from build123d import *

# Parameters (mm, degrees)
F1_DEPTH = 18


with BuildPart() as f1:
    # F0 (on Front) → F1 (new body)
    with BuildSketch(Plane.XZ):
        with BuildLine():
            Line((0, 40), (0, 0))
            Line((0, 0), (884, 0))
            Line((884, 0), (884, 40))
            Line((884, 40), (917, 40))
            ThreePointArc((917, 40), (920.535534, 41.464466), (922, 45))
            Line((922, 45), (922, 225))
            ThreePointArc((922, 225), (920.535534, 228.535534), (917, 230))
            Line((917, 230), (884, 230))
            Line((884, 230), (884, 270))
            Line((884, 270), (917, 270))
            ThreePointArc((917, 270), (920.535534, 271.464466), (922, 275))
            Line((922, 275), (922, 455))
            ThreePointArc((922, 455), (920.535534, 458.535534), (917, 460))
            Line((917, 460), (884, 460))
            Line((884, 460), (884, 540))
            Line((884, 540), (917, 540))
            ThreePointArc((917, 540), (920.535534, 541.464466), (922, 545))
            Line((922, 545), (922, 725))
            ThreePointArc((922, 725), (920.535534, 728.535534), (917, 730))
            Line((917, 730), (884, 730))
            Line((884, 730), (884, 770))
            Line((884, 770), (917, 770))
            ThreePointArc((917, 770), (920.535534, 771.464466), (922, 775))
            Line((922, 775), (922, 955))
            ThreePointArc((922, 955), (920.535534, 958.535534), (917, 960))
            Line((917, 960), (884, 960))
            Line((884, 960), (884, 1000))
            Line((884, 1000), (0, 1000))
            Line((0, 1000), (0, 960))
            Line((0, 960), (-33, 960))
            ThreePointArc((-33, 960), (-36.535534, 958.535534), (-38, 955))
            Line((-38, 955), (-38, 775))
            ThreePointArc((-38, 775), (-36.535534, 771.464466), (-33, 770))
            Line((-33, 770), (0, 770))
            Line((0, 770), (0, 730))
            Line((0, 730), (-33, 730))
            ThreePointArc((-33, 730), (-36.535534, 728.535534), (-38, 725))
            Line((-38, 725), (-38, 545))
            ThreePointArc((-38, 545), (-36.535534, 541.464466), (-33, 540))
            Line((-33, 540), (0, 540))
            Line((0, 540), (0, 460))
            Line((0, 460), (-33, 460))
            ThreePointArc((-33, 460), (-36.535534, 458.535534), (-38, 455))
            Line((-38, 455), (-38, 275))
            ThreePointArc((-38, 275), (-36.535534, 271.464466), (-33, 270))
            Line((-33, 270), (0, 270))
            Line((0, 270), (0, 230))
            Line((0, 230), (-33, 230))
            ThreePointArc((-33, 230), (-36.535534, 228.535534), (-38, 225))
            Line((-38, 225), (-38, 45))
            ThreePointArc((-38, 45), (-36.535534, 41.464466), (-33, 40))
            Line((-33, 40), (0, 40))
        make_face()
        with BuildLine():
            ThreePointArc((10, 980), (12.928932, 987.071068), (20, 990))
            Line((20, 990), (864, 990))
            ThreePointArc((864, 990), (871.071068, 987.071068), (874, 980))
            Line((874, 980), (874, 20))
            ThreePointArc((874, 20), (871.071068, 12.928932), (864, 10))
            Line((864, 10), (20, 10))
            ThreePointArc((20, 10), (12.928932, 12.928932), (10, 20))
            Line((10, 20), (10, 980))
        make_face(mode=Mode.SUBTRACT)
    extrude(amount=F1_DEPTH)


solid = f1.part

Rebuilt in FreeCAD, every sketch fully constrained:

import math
import FreeCAD as App
import Part
import Sketcher

doc = App.newDocument("Part")
body = doc.addObject("PartDesign::Body", "Body")

# Sketch on XZ plane
sketch1 = body.newObject("Sketcher::SketchObject", "Sketch")
sketch1.AttachmentSupport = (doc.getObject("XZ_Plane"), [""])
sketch1.MapMode = "FlatFace"
sketch1.addGeometry(Part.LineSegment(App.Vector(0, 40, 0), App.Vector(0, 0, 0)), False)
sketch1.addGeometry(Part.LineSegment(App.Vector(0, 0, 0), App.Vector(884, 0, 0)), False)
sketch1.addGeometry(Part.LineSegment(App.Vector(884, 0, 0), App.Vector(884, 40, 0)), False)
sketch1.addGeometry(Part.LineSegment(App.Vector(884, 40, 0), App.Vector(917, 40, 0)), False)
sketch1.addGeometry(Part.ArcOfCircle(Part.Circle(App.Vector(917, 45, 0), App.Vector(0, 0, 1), 5), math.radians(-90), math.radians(0)), False)
sketch1.addGeometry(Part.LineSegment(App.Vector(922, 45, 0), App.Vector(922, 225, 0)), False)
sketch1.addGeometry(Part.ArcOfCircle(Part.Circle(App.Vector(917, 225, 0), App.Vector(0, 0, 1), 5), math.radians(0), math.radians(90)), False)
sketch1.addGeometry(Part.LineSegment(App.Vector(917, 230, 0), App.Vector(884, 230, 0)), False)
sketch1.addGeometry(Part.LineSegment(App.Vector(884, 230, 0), App.Vector(884, 270, 0)), False)
sketch1.addGeometry(Part.LineSegment(App.Vector(884, 270, 0), App.Vector(917, 270, 0)), False)
sketch1.addGeometry(Part.ArcOfCircle(Part.Circle(App.Vector(917, 275, 0), App.Vector(0, 0, 1), 5), math.radians(-90), math.radians(0)), False)
sketch1.addGeometry(Part.LineSegment(App.Vector(922, 275, 0), App.Vector(922, 455, 0)), False)
sketch1.addGeometry(Part.ArcOfCircle(Part.Circle(App.Vector(917, 455, 0), App.Vector(0, 0, 1), 5), math.radians(0), math.radians(90)), False)
sketch1.addGeometry(Part.LineSegment(App.Vector(917, 460, 0), App.Vector(884, 460, 0)), False)
sketch1.addGeometry(Part.LineSegment(App.Vector(884, 460, 0), App.Vector(884, 540, 0)), False)
sketch1.addGeometry(Part.LineSegment(App.Vector(884, 540, 0), App.Vector(917, 540, 0)), False)
sketch1.addGeometry(Part.ArcOfCircle(Part.Circle(App.Vector(917, 545, 0), App.Vector(0, 0, 1), 5), math.radians(-90), math.radians(0)), False)
sketch1.addGeometry(Part.LineSegment(App.Vector(922, 545, 0), App.Vector(922, 725, 0)), False)
sketch1.addGeometry(Part.ArcOfCircle(Part.Circle(App.Vector(917, 725, 0), App.Vector(0, 0, 1), 5), math.radians(0), math.radians(90)), False)
sketch1.addGeometry(Part.LineSegment(App.Vector(917, 730, 0), App.Vector(884, 730, 0)), False)
sketch1.addGeometry(Part.LineSegment(App.Vector(884, 730, 0), App.Vector(884, 770, 0)), False)
sketch1.addGeometry(Part.LineSegment(App.Vector(884, 770, 0), App.Vector(917, 770, 0)), False)
sketch1.addGeometry(Part.ArcOfCircle(Part.Circle(App.Vector(917, 775, 0), App.Vector(0, 0, 1), 5), math.radians(-90), math.radians(0)), False)
sketch1.addGeometry(Part.LineSegment(App.Vector(922, 775, 0), App.Vector(922, 955, 0)), False)
sketch1.addGeometry(Part.ArcOfCircle(Part.Circle(App.Vector(917, 955, 0), App.Vector(0, 0, 1), 5), math.radians(0), math.radians(90)), False)
sketch1.addGeometry(Part.LineSegment(App.Vector(917, 960, 0), App.Vector(884, 960, 0)), False)
sketch1.addGeometry(Part.LineSegment(App.Vector(884, 960, 0), App.Vector(884, 1000, 0)), False)
sketch1.addGeometry(Part.LineSegment(App.Vector(884, 1000, 0), App.Vector(0, 1000, 0)), False)
sketch1.addGeometry(Part.LineSegment(App.Vector(0, 1000, 0), App.Vector(0, 960, 0)), False)
sketch1.addGeometry(Part.LineSegment(App.Vector(0, 960, 0), App.Vector(-33, 960, 0)), False)
sketch1.addGeometry(Part.ArcOfCircle(Part.Circle(App.Vector(-33, 955, 0), App.Vector(0, 0, 1), 5), math.radians(90), math.radians(180)), False)
sketch1.addGeometry(Part.LineSegment(App.Vector(-38, 955, 0), App.Vector(-38, 775, 0)), False)
sketch1.addGeometry(Part.ArcOfCircle(Part.Circle(App.Vector(-33, 775, 0), App.Vector(0, 0, 1), 5), math.radians(180), math.radians(270)), False)
sketch1.addGeometry(Part.LineSegment(App.Vector(-33, 770, 0), App.Vector(0, 770, 0)), False)
sketch1.addGeometry(Part.LineSegment(App.Vector(0, 770, 0), App.Vector(0, 730, 0)), False)
sketch1.addGeometry(Part.LineSegment(App.Vector(0, 730, 0), App.Vector(-33, 730, 0)), False)
sketch1.addGeometry(Part.ArcOfCircle(Part.Circle(App.Vector(-33, 725, 0), App.Vector(0, 0, 1), 5), math.radians(90), math.radians(180)), False)
sketch1.addGeometry(Part.LineSegment(App.Vector(-38, 725, 0), App.Vector(-38, 545, 0)), False)
sketch1.addGeometry(Part.ArcOfCircle(Part.Circle(App.Vector(-33, 545, 0), App.Vector(0, 0, 1), 5), math.radians(180), math.radians(270)), False)
sketch1.addGeometry(Part.LineSegment(App.Vector(-33, 540, 0), App.Vector(0, 540, 0)), False)
sketch1.addGeometry(Part.LineSegment(App.Vector(0, 540, 0), App.Vector(0, 460, 0)), False)
sketch1.addGeometry(Part.LineSegment(App.Vector(0, 460, 0), App.Vector(-33, 460, 0)), False)
sketch1.addGeometry(Part.ArcOfCircle(Part.Circle(App.Vector(-33, 455, 0), App.Vector(0, 0, 1), 5), math.radians(90), math.radians(180)), False)
sketch1.addGeometry(Part.LineSegment(App.Vector(-38, 455, 0), App.Vector(-38, 275, 0)), False)
sketch1.addGeometry(Part.ArcOfCircle(Part.Circle(App.Vector(-33, 275, 0), App.Vector(0, 0, 1), 5), math.radians(180), math.radians(270)), False)
sketch1.addGeometry(Part.LineSegment(App.Vector(-33, 270, 0), App.Vector(0, 270, 0)), False)
sketch1.addGeometry(Part.LineSegment(App.Vector(0, 270, 0), App.Vector(0, 230, 0)), False)
sketch1.addGeometry(Part.LineSegment(App.Vector(0, 230, 0), App.Vector(-33, 230, 0)), False)
sketch1.addGeometry(Part.ArcOfCircle(Part.Circle(App.Vector(-33, 225, 0), App.Vector(0, 0, 1), 5), math.radians(90), math.radians(180)), False)
sketch1.addGeometry(Part.LineSegment(App.Vector(-38, 225, 0), App.Vector(-38, 45, 0)), False)
sketch1.addGeometry(Part.ArcOfCircle(Part.Circle(App.Vector(-33, 45, 0), App.Vector(0, 0, 1), 5), math.radians(180), math.radians(270)), False)
sketch1.addGeometry(Part.LineSegment(App.Vector(-33, 40, 0), App.Vector(0, 40, 0)), False)
sketch1.addGeometry(Part.LineSegment(App.Vector(10, 20, 0), App.Vector(10, 980, 0)), False)
sketch1.addGeometry(Part.ArcOfCircle(Part.Circle(App.Vector(20, 980, 0), App.Vector(0, 0, 1), 10), math.radians(90), math.radians(180)), False)
sketch1.addGeometry(Part.LineSegment(App.Vector(20, 990, 0), App.Vector(864, 990, 0)), False)
sketch1.addGeometry(Part.ArcOfCircle(Part.Circle(App.Vector(864, 980, 0), App.Vector(0, 0, 1), 10), math.radians(0), math.radians(90)), False)
sketch1.addGeometry(Part.LineSegment(App.Vector(874, 980, 0), App.Vector(874, 20, 0)), False)
sketch1.addGeometry(Part.ArcOfCircle(Part.Circle(App.Vector(864, 20, 0), App.Vector(0, 0, 1), 10), math.radians(-90), math.radians(0)), False)
sketch1.addGeometry(Part.LineSegment(App.Vector(864, 10, 0), App.Vector(20, 10, 0)), False)
sketch1.addGeometry(Part.ArcOfCircle(Part.Circle(App.Vector(20, 20, 0), App.Vector(0, 0, 1), 10), math.radians(180), math.radians(270)), False)
sketch1.addConstraint(Sketcher.Constraint("Coincident", 0, 2, 1, 1))
sketch1.addConstraint(Sketcher.Constraint("Coincident", 1, 2, 2, 1))
sketch1.addConstraint(Sketcher.Constraint("Coincident", 2, 2, 3, 1))
sketch1.addConstraint(Sketcher.Constraint("Tangent", 3, 2, 4, 1))
sketch1.addConstraint(Sketcher.Constraint("Tangent", 4, 2, 5, 1))
sketch1.addConstraint(Sketcher.Constraint("Tangent", 5, 2, 6, 1))
sketch1.addConstraint(Sketcher.Constraint("Tangent", 6, 2, 7, 1))
sketch1.addConstraint(Sketcher.Constraint("Coincident", 7, 2, 8, 1))
sketch1.addConstraint(Sketcher.Constraint("Coincident", 8, 2, 9, 1))
sketch1.addConstraint(Sketcher.Constraint("Tangent", 9, 2, 10, 1))
sketch1.addConstraint(Sketcher.Constraint("Tangent", 10, 2, 11, 1))
sketch1.addConstraint(Sketcher.Constraint("Tangent", 11, 2, 12, 1))
sketch1.addConstraint(Sketcher.Constraint("Tangent", 12, 2, 13, 1))
sketch1.addConstraint(Sketcher.Constraint("Coincident", 13, 2, 14, 1))
sketch1.addConstraint(Sketcher.Constraint("Coincident", 14, 2, 15, 1))
sketch1.addConstraint(Sketcher.Constraint("Tangent", 15, 2, 16, 1))
sketch1.addConstraint(Sketcher.Constraint("Tangent", 16, 2, 17, 1))
sketch1.addConstraint(Sketcher.Constraint("Tangent", 17, 2, 18, 1))
sketch1.addConstraint(Sketcher.Constraint("Tangent", 18, 2, 19, 1))
sketch1.addConstraint(Sketcher.Constraint("Coincident", 19, 2, 20, 1))
sketch1.addConstraint(Sketcher.Constraint("Coincident", 20, 2, 21, 1))
sketch1.addConstraint(Sketcher.Constraint("Tangent", 21, 2, 22, 1))
sketch1.addConstraint(Sketcher.Constraint("Tangent", 22, 2, 23, 1))
sketch1.addConstraint(Sketcher.Constraint("Tangent", 23, 2, 24, 1))
sketch1.addConstraint(Sketcher.Constraint("Tangent", 24, 2, 25, 1))
sketch1.addConstraint(Sketcher.Constraint("Coincident", 25, 2, 26, 1))
sketch1.addConstraint(Sketcher.Constraint("Coincident", 26, 2, 27, 1))
sketch1.addConstraint(Sketcher.Constraint("Coincident", 27, 2, 28, 1))
sketch1.addConstraint(Sketcher.Constraint("Coincident", 28, 2, 29, 1))
sketch1.addConstraint(Sketcher.Constraint("Tangent", 29, 2, 30, 1))
sketch1.addConstraint(Sketcher.Constraint("Tangent", 30, 2, 31, 1))
sketch1.addConstraint(Sketcher.Constraint("Tangent", 31, 2, 32, 1))
sketch1.addConstraint(Sketcher.Constraint("Tangent", 32, 2, 33, 1))
sketch1.addConstraint(Sketcher.Constraint("Coincident", 33, 2, 34, 1))
sketch1.addConstraint(Sketcher.Constraint("Coincident", 34, 2, 35, 1))
sketch1.addConstraint(Sketcher.Constraint("Tangent", 35, 2, 36, 1))
sketch1.addConstraint(Sketcher.Constraint("Tangent", 36, 2, 37, 1))
sketch1.addConstraint(Sketcher.Constraint("Tangent", 37, 2, 38, 1))
sketch1.addConstraint(Sketcher.Constraint("Tangent", 38, 2, 39, 1))
sketch1.addConstraint(Sketcher.Constraint("Coincident", 39, 2, 40, 1))
sketch1.addConstraint(Sketcher.Constraint("Coincident", 40, 2, 41, 1))
sketch1.addConstraint(Sketcher.Constraint("Tangent", 41, 2, 42, 1))
sketch1.addConstraint(Sketcher.Constraint("Tangent", 42, 2, 43, 1))
sketch1.addConstraint(Sketcher.Constraint("Tangent", 43, 2, 44, 1))
sketch1.addConstraint(Sketcher.Constraint("Tangent", 44, 2, 45, 1))
sketch1.addConstraint(Sketcher.Constraint("Coincident", 45, 2, 46, 1))
sketch1.addConstraint(Sketcher.Constraint("Coincident", 46, 2, 47, 1))
sketch1.addConstraint(Sketcher.Constraint("Tangent", 47, 2, 48, 1))
sketch1.addConstraint(Sketcher.Constraint("Tangent", 48, 2, 49, 1))
sketch1.addConstraint(Sketcher.Constraint("Tangent", 49, 2, 50, 1))
sketch1.addConstraint(Sketcher.Constraint("Tangent", 50, 2, 51, 1))
sketch1.addConstraint(Sketcher.Constraint("Coincident", 51, 2, 0, 1))
sketch1.addConstraint(Sketcher.Constraint("Tangent", 52, 2, 53, 2))
sketch1.addConstraint(Sketcher.Constraint("Tangent", 53, 1, 54, 1))
sketch1.addConstraint(Sketcher.Constraint("Tangent", 54, 2, 55, 2))
sketch1.addConstraint(Sketcher.Constraint("Tangent", 55, 1, 56, 1))
sketch1.addConstraint(Sketcher.Constraint("Tangent", 56, 2, 57, 2))
sketch1.addConstraint(Sketcher.Constraint("Tangent", 57, 1, 58, 1))
sketch1.addConstraint(Sketcher.Constraint("Tangent", 58, 2, 59, 2))
sketch1.addConstraint(Sketcher.Constraint("Tangent", 59, 1, 52, 1))
sketch1.addConstraint(Sketcher.Constraint("Vertical", 0))
sketch1.addConstraint(Sketcher.Constraint("Horizontal", 1))
sketch1.addConstraint(Sketcher.Constraint("Vertical", 2))
sketch1.addConstraint(Sketcher.Constraint("Horizontal", 3))
sketch1.addConstraint(Sketcher.Constraint("Vertical", 5))
sketch1.addConstraint(Sketcher.Constraint("Horizontal", 7))
sketch1.addConstraint(Sketcher.Constraint("Vertical", 8))
sketch1.addConstraint(Sketcher.Constraint("Horizontal", 9))
sketch1.addConstraint(Sketcher.Constraint("Vertical", 11))
sketch1.addConstraint(Sketcher.Constraint("Horizontal", 13))
sketch1.addConstraint(Sketcher.Constraint("Vertical", 14))
sketch1.addConstraint(Sketcher.Constraint("Horizontal", 15))
sketch1.addConstraint(Sketcher.Constraint("Vertical", 17))
sketch1.addConstraint(Sketcher.Constraint("Horizontal", 19))
sketch1.addConstraint(Sketcher.Constraint("Vertical", 20))
sketch1.addConstraint(Sketcher.Constraint("Horizontal", 21))
sketch1.addConstraint(Sketcher.Constraint("Vertical", 23))
sketch1.addConstraint(Sketcher.Constraint("Horizontal", 25))
sketch1.addConstraint(Sketcher.Constraint("Vertical", 26))
sketch1.addConstraint(Sketcher.Constraint("Horizontal", 27))
sketch1.addConstraint(Sketcher.Constraint("Vertical", 28))
sketch1.addConstraint(Sketcher.Constraint("Horizontal", 29))
sketch1.addConstraint(Sketcher.Constraint("Vertical", 31))
sketch1.addConstraint(Sketcher.Constraint("Horizontal", 33))
sketch1.addConstraint(Sketcher.Constraint("Vertical", 34))
sketch1.addConstraint(Sketcher.Constraint("Horizontal", 35))
sketch1.addConstraint(Sketcher.Constraint("Vertical", 37))
sketch1.addConstraint(Sketcher.Constraint("Horizontal", 39))
sketch1.addConstraint(Sketcher.Constraint("Vertical", 40))
sketch1.addConstraint(Sketcher.Constraint("Horizontal", 41))
sketch1.addConstraint(Sketcher.Constraint("Vertical", 43))
sketch1.addConstraint(Sketcher.Constraint("Horizontal", 45))
sketch1.addConstraint(Sketcher.Constraint("Vertical", 46))
sketch1.addConstraint(Sketcher.Constraint("Horizontal", 47))
sketch1.addConstraint(Sketcher.Constraint("Vertical", 49))
sketch1.addConstraint(Sketcher.Constraint("Horizontal", 51))
sketch1.addConstraint(Sketcher.Constraint("Vertical", 52))
sketch1.addConstraint(Sketcher.Constraint("Horizontal", 54))
sketch1.addConstraint(Sketcher.Constraint("Vertical", 56))
sketch1.addConstraint(Sketcher.Constraint("Horizontal", 58))
sketch1.addConstraint(Sketcher.Constraint("Coincident", 0, 2, -1, 1))
sketch1.addConstraint(Sketcher.Constraint("Equal", 4, 6))
sketch1.addConstraint(Sketcher.Constraint("Equal", 6, 10))
sketch1.addConstraint(Sketcher.Constraint("Equal", 10, 12))
sketch1.addConstraint(Sketcher.Constraint("Equal", 12, 16))
sketch1.addConstraint(Sketcher.Constraint("Equal", 16, 18))
sketch1.addConstraint(Sketcher.Constraint("Equal", 18, 22))
sketch1.addConstraint(Sketcher.Constraint("Equal", 22, 24))
sketch1.addConstraint(Sketcher.Constraint("Equal", 24, 30))
sketch1.addConstraint(Sketcher.Constraint("Equal", 30, 32))
sketch1.addConstraint(Sketcher.Constraint("Equal", 32, 36))
sketch1.addConstraint(Sketcher.Constraint("Equal", 36, 38))
sketch1.addConstraint(Sketcher.Constraint("Equal", 38, 42))
sketch1.addConstraint(Sketcher.Constraint("Equal", 42, 44))
sketch1.addConstraint(Sketcher.Constraint("Equal", 44, 48))
sketch1.addConstraint(Sketcher.Constraint("Equal", 48, 50))
sketch1.addConstraint(Sketcher.Constraint("Equal", 53, 55))
sketch1.addConstraint(Sketcher.Constraint("Equal", 55, 57))
sketch1.addConstraint(Sketcher.Constraint("Equal", 57, 59))
sketch1.addConstraint(Sketcher.Constraint("PointOnObject", 27, 2, -2))
sketch1.addConstraint(Sketcher.Constraint("PointOnObject", 33, 2, -2))
sketch1.addConstraint(Sketcher.Constraint("PointOnObject", 39, 2, -2))
sketch1.addConstraint(Sketcher.Constraint("PointOnObject", 45, 2, -2))
sketch1.addConstraint(Sketcher.Constraint("Horizontal", 24, 3, 30, 3))
sketch1.addConstraint(Sketcher.Constraint("Horizontal", 22, 3, 32, 3))
sketch1.addConstraint(Sketcher.Constraint("Horizontal", 18, 3, 36, 3))
sketch1.addConstraint(Sketcher.Constraint("Horizontal", 16, 3, 38, 3))
sketch1.addConstraint(Sketcher.Constraint("Horizontal", 12, 3, 42, 3))
sketch1.addConstraint(Sketcher.Constraint("Horizontal", 10, 3, 44, 3))
sketch1.addConstraint(Sketcher.Constraint("Horizontal", 6, 3, 48, 3))
sketch1.addConstraint(Sketcher.Constraint("Horizontal", 4, 3, 50, 3))
sketch1.addConstraint(Sketcher.Constraint("Vertical", 6, 3, 10, 3))
sketch1.addConstraint(Sketcher.Constraint("Vertical", 12, 3, 16, 3))
sketch1.addConstraint(Sketcher.Constraint("Vertical", 18, 3, 22, 3))
sketch1.addConstraint(Sketcher.Constraint("Vertical", 32, 3, 36, 3))
sketch1.addConstraint(Sketcher.Constraint("Vertical", 38, 3, 42, 3))
sketch1.addConstraint(Sketcher.Constraint("Vertical", 44, 3, 48, 3))
sketch1.addConstraint(Sketcher.Constraint("Vertical", 2, 2, 7, 2))
sketch1.addConstraint(Sketcher.Constraint("Vertical", 8, 2, 13, 2))
sketch1.addConstraint(Sketcher.Constraint("Vertical", 14, 2, 19, 2))
sketch1.addConstraint(Sketcher.Constraint("Vertical", 20, 2, 25, 2))
sketch1.addConstraint(Sketcher.Constraint("Equal", 25, 29))
sketch1.addConstraint(Sketcher.Constraint("Equal", 2, 8))
sketch1.addConstraint(Sketcher.Constraint("Equal", 5, 11))
sketch1.addConstraint(Sketcher.Constraint("Equal", 11, 17))
sketch1.addConstraint(Sketcher.Constraint("Equal", 8, 20))
sketch1.addConstraint(Sketcher.Constraint("Equal", 17, 23))
sketch1.addConstraint(Sketcher.Constraint("Equal", 20, 26))
sketch1.addConstraint(Sketcher.Constraint("Radius", 4, 5.0))
sketch1.addConstraint(Sketcher.Constraint("Radius", 53, 9.999999))
sketch1.addConstraint(Sketcher.Constraint("DistanceX", 1, 1, 1, 2, 884.0))
sketch1.addConstraint(Sketcher.Constraint("DistanceX", 3, 1, 3, 2, 33.0))
sketch1.addConstraint(Sketcher.Constraint("DistanceX", 54, 1, 54, 2, 844.0))
sketch1.addConstraint(Sketcher.Constraint("DistanceY", 0, 2, 0, 1, 40.0))
sketch1.addConstraint(Sketcher.Constraint("DistanceY", 5, 1, 5, 2, 180.0))
sketch1.addConstraint(Sketcher.Constraint("DistanceY", 14, 1, 14, 2, 80.0))
sketch1.addConstraint(Sketcher.Constraint("DistanceY", 52, 1, 52, 2, 960.0))
sketch1.addConstraint(Sketcher.Constraint("DistanceX", -1, 1, 53, 3, 19.999999))
sketch1.addConstraint(Sketcher.Constraint("DistanceY", -1, 1, 53, 3, 980.000001))
pad1 = body.newObject("PartDesign::Pad", "Pad")
pad1.Profile = sketch1
pad1.Length = 18

doc.recompute()
